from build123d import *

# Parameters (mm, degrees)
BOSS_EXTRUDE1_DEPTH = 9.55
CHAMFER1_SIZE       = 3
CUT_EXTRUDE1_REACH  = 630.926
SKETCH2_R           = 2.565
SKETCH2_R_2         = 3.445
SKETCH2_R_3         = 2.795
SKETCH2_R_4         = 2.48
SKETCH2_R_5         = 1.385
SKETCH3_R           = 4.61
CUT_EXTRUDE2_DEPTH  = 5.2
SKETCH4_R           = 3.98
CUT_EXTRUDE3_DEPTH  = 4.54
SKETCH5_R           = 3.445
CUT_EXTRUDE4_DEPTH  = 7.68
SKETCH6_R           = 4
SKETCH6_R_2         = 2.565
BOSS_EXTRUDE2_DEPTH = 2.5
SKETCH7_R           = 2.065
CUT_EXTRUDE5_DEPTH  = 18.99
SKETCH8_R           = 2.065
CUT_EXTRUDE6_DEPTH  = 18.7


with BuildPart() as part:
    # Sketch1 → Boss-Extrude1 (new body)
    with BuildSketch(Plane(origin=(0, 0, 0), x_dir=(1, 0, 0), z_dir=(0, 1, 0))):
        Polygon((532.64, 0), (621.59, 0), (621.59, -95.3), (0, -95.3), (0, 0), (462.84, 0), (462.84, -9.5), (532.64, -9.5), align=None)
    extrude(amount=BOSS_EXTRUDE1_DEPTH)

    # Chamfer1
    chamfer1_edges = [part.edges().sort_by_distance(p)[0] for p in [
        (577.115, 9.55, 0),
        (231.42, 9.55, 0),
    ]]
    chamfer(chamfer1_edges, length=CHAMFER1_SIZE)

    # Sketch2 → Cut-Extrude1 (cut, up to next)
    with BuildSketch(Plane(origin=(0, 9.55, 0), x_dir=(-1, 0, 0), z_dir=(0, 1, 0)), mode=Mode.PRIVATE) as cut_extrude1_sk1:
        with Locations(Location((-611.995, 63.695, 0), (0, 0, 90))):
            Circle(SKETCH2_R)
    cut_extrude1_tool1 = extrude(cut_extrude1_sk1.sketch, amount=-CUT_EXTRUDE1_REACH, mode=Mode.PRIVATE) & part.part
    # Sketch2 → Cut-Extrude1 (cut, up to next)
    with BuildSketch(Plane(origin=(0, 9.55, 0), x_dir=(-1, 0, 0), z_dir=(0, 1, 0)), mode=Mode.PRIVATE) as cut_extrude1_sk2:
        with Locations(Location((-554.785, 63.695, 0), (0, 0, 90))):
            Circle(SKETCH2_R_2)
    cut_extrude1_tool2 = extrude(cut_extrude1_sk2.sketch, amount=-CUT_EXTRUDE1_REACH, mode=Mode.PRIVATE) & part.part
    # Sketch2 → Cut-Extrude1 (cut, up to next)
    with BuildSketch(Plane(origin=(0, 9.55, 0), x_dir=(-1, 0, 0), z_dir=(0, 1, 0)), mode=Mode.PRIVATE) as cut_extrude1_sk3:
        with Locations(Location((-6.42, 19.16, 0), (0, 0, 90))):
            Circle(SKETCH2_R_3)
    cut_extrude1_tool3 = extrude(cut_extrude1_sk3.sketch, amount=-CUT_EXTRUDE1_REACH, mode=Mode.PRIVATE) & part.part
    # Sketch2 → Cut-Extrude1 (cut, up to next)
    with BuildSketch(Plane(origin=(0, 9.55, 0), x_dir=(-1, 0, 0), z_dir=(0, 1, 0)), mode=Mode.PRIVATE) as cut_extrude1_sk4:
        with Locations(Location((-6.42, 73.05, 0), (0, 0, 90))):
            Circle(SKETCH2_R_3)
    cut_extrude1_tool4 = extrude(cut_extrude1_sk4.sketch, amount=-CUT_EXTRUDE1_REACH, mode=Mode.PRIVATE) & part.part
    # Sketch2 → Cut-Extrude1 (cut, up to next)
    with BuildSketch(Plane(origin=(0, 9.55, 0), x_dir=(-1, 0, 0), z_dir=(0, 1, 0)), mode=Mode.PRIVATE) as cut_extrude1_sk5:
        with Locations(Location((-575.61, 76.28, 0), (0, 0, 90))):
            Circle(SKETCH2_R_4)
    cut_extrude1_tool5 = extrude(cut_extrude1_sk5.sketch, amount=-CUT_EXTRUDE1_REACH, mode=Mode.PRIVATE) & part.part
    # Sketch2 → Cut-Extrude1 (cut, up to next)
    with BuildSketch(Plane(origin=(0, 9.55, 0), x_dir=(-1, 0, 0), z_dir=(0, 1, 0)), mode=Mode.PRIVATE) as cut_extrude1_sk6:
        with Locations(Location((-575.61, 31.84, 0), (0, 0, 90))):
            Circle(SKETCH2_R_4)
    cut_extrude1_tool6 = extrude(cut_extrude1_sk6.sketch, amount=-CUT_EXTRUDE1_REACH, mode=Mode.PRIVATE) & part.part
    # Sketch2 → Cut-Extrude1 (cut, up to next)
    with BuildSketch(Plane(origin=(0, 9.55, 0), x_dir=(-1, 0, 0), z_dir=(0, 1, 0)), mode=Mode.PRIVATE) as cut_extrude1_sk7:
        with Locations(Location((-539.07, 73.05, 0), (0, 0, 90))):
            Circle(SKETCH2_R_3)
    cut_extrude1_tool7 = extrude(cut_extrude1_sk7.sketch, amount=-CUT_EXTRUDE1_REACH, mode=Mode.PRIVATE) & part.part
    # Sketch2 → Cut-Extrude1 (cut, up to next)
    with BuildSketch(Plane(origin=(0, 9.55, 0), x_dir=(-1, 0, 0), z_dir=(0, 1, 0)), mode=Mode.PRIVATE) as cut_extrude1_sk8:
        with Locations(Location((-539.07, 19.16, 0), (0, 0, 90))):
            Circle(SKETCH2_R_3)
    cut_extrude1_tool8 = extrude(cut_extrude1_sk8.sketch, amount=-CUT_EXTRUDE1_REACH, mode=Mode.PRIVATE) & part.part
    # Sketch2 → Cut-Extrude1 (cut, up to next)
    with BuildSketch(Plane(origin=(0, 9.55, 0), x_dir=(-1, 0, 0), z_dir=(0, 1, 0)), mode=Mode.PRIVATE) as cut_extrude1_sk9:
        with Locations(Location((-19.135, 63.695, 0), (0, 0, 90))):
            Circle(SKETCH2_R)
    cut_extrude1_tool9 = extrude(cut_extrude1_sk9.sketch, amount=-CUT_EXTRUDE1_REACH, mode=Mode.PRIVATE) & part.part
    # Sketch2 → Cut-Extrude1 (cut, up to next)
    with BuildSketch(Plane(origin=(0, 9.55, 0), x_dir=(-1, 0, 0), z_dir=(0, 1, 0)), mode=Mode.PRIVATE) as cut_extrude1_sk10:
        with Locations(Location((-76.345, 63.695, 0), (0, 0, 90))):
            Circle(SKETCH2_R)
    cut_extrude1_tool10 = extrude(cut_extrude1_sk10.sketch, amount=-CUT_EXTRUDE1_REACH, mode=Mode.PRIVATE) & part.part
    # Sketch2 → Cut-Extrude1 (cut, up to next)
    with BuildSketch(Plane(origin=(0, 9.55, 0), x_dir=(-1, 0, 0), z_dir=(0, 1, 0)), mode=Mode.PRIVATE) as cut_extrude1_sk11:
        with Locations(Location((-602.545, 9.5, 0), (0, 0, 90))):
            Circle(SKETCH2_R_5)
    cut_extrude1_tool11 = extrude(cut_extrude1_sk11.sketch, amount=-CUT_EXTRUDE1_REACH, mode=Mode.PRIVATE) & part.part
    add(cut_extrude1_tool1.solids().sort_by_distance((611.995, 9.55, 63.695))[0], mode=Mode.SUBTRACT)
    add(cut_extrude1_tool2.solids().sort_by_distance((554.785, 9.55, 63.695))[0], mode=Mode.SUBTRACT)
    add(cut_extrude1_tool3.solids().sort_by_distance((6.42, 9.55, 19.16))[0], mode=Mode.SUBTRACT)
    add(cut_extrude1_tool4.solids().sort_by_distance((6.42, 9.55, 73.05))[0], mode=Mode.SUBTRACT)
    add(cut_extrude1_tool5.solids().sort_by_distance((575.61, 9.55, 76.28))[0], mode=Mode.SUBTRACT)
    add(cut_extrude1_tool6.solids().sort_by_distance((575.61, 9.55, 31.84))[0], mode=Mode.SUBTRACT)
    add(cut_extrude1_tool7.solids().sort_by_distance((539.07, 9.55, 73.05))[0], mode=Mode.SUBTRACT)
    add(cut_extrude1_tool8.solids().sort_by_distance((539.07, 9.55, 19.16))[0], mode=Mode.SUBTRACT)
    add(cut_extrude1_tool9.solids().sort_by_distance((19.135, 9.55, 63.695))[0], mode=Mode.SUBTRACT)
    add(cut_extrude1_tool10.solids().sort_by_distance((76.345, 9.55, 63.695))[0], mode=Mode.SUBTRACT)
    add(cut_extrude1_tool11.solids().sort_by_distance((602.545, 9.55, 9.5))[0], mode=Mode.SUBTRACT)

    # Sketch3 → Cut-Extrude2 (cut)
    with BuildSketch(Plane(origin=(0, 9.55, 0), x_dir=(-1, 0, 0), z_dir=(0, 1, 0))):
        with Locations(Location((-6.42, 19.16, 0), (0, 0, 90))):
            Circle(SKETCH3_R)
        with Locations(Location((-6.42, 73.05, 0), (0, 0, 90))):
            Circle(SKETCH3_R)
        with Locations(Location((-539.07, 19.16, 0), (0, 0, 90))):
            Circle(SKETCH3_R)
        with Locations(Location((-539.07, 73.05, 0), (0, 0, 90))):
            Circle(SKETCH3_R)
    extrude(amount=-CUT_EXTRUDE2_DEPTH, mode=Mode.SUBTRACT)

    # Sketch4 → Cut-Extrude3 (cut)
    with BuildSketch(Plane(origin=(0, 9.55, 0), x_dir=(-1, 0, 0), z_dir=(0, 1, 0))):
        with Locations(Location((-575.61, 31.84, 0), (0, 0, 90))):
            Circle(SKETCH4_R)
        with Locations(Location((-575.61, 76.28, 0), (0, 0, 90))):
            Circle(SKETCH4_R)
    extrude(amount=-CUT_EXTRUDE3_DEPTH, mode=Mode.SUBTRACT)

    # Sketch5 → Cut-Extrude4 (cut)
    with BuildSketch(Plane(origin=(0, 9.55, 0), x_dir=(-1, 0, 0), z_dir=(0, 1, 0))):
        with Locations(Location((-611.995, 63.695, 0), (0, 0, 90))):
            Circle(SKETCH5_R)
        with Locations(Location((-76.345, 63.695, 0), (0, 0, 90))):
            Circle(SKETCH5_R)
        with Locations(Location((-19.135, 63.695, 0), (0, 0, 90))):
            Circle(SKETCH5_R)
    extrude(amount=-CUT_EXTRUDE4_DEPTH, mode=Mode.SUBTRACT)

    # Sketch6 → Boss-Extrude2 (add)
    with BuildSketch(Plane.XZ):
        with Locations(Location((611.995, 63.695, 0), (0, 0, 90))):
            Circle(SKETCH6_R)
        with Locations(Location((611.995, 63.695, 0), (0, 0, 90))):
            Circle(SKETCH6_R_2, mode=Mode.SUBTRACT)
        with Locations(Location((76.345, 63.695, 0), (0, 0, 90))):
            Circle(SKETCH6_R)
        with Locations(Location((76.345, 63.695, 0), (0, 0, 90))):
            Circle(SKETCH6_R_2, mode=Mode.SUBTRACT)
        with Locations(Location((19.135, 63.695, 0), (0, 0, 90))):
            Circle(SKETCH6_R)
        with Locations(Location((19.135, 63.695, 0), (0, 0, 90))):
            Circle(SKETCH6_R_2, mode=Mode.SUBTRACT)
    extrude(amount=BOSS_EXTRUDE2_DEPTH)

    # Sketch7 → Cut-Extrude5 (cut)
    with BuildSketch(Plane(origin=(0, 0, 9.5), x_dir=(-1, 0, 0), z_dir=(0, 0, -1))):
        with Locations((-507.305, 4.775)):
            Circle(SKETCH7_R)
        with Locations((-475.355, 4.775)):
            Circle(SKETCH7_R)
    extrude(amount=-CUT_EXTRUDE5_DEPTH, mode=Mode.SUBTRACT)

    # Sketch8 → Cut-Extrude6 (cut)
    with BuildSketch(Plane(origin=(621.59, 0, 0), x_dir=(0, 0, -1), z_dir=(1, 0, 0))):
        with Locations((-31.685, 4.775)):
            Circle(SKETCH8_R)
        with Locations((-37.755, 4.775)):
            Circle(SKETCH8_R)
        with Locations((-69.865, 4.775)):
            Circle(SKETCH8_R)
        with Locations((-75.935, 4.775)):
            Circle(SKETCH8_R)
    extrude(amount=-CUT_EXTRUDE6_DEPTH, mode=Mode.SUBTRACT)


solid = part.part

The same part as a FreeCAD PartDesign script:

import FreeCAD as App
import Part
import Sketcher
from FreeCAD import Vector
Q = App.Units.Quantity


def edges_at(feature, points):
    """Names of the edges that pass closest to the given points."""
    edges = feature.Shape.Edges
    near = lambda p: min(range(len(edges)), key=lambda i: edges[i].distToShape(Part.Vertex(*p))[0])
    return sorted({f"Edge{near(p) + 1}" for p in points})

doc = App.newDocument("Part")
body = doc.addObject("PartDesign::Body", "Body")

# Sketch on XZ plane
sketch1 = body.newObject("Sketcher::SketchObject", "Sketch")
sketch1.AttachmentSupport = (doc.getObject("XZ_Plane"), [""])
sketch1.MapMode = "FlatFace"
sketch1.addGeometry(Part.LineSegment(Vector(622, 0, 0), Vector(533, 0, 0)), False)
sketch1.addGeometry(Part.LineSegment(Vector(533, 0, 0), Vector(533, 10, 0)), False)
sketch1.addGeometry(Part.LineSegment(Vector(533, 10, 0), Vector(463, 10, 0)), False)
sketch1.addGeometry(Part.LineSegment(Vector(463, 10, 0), Vector(463, 0, 0)), False)
sketch1.addGeometry(Part.LineSegment(Vector(463, 0, 0), Vector(0, 0, 0)), False)
sketch1.addGeometry(Part.LineSegment(Vector(0, 0, 0), Vector(0, 95, 0)), False)
sketch1.addGeometry(Part.LineSegment(Vector(0, 95, 0), Vector(622, 95, 0)), False)
sketch1.addGeometry(Part.LineSegment(Vector(622, 95, 0), Vector(622, 0, 0)), False)
sketch1.addConstraint(Sketcher.Constraint("Coincident", 0, 2, 1, 1))
sketch1.addConstraint(Sketcher.Constraint("Coincident", 1, 2, 2, 1))
sketch1.addConstraint(Sketcher.Constraint("Coincident", 2, 2, 3, 1))
sketch1.addConstraint(Sketcher.Constraint("Coincident", 3, 2, 4, 1))
sketch1.addConstraint(Sketcher.Constraint("Coincident", 4, 2, 5, 1))
sketch1.addConstraint(Sketcher.Constraint("Coincident", 5, 2, 6, 1))
sketch1.addConstraint(Sketcher.Constraint("Coincident", 6, 2, 7, 1))
sketch1.addConstraint(Sketcher.Constraint("Coincident", 7, 2, 0, 1))
sketch1.addConstraint(Sketcher.Constraint("Horizontal", 0))
sketch1.addConstraint(Sketcher.Constraint("Vertical", 1))
sketch1.addConstraint(Sketcher.Constraint("Horizontal", 2))
sketch1.addConstraint(Sketcher.Constraint("Vertical", 3))
sketch1.addConstraint(Sketcher.Constraint("Horizontal", 4))
sketch1.addConstraint(Sketcher.Constraint("Vertical", 5))
sketch1.addConstraint(Sketcher.Constraint("Horizontal", 6))
sketch1.addConstraint(Sketcher.Constraint("Vertical", 7))
sketch1.addConstraint(Sketcher.Constraint("Coincident", 4, 2, -1, 1))
sketch1.addConstraint(Sketcher.Constraint("PointOnObject", 0, 2, -1))
sketch1.addConstraint(Sketcher.Constraint("DistanceX", 2, 2, 2, 1, Q("69.8 mm")))
sketch1.addConstraint(Sketcher.Constraint("DistanceY", 1, 1, 1, 2, Q("9.5 mm")))
sketch1.addConstraint(Sketcher.Constraint("DistanceY", 5, 1, 5, 2, Q("95.3 mm")))
sketch1.addConstraint(Sketcher.Constraint("DistanceX", 0, 2, 0, 1, Q("88.95 mm")))
sketch1.addConstraint(Sketcher.Constraint("DistanceX", 4, 2, 4, 1, Q("462.84 mm")))
pad1 = body.newObject("PartDesign::Pad", "Pad")
pad1.Profile = sketch1
pad1.Length = 9.55
pad1.Reversed = True
doc.recompute()

chamfer = body.newObject("PartDesign::Chamfer", "Chamfer")
chamfer.Base = (pad1, edges_at(pad1, [(577.115, 9.55, 0), (231.42, 9.55, 0)]))
chamfer.Size = 3

# Sketch on XZ plane
sketch2 = body.newObject("Sketcher::SketchObject", "Sketch001")
sketch2.AttachmentSupport = (doc.getObject("XZ_Plane"), [""])
sketch2.MapMode = "FlatFace"
sketch2.AttachmentOffset = App.Placement(Vector(0, 0, -9.55), App.Rotation())
sketch2.addGeometry(Part.Circle(Vector(612, 63.7, 0), Vector(0, 0, 1), 2.6), False)
sketch2.addConstraint(Sketcher.Constraint("Diameter", 0, Q("5.13 mm")))
sketch2.addConstraint(Sketcher.Constraint("DistanceX", -1, 1, 0, 3, Q("611.995 mm")))
sketch2.addConstraint(Sketcher.Constraint("DistanceY", -1, 1, 0, 3, Q("63.695 mm")))
pocket1 = body.newObject("PartDesign::Pocket", "Pocket")
pocket1.Profile = sketch2
pocket1.Type = "UpToFirst"
pocket1.Reversed = True

# Sketch on XZ plane
sketch3 = body.newObject("Sketcher::SketchObject", "Sketch002")
sketch3.AttachmentSupport = (doc.getObject("XZ_Plane"), [""])
sketch3.MapMode = "FlatFace"
sketch3.AttachmentOffset = App.Placement(Vector(0, 0, -9.55), App.Rotation())
sketch3.addGeometry(Part.Circle(Vector(554.8, 63.7, 0), Vector(0, 0, 1), 3.4), False)
sketch3.addConstraint(Sketcher.Constraint("Diameter", 0, Q("6.89 mm")))
sketch3.addConstraint(Sketcher.Constraint("DistanceX", -1, 1, 0, 3, Q("554.785 mm")))
sketch3.addConstraint(Sketcher.Constraint("DistanceY", -1, 1, 0, 3, Q("63.695 mm")))
pocket2 = body.newObject("PartDesign::Pocket", "Pocket001")
pocket2.Profile = sketch3
pocket2.Type = "UpToFirst"
pocket2.Reversed = True

# Sketch on XZ plane
sketch4 = body.newObject("Sketcher::SketchObject", "Sketch003")
sketch4.AttachmentSupport = (doc.getObject("XZ_Plane"), [""])
sketch4.MapMode = "FlatFace"
sketch4.AttachmentOffset = App.Placement(Vector(0, 0, -9.55), App.Rotation())
sketch4.addGeometry(Part.Circle(Vector(6.4, 19.2, 0), Vector(0, 0, 1), 2.8), False)
sketch4.addConstraint(Sketcher.Constraint("Diameter", 0, Q("5.59 mm")))
sketch4.addConstraint(Sketcher.Constraint("DistanceX", -1, 1, 0, 3, Q("6.42 mm")))
sketch4.addConstraint(Sketcher.Constraint("DistanceY", -1, 1, 0, 3, Q("19.16 mm")))
pocket3 = body.newObject("PartDesign::Pocket", "Pocket002")
pocket3.Profile = sketch4
pocket3.Type = "UpToFirst"
pocket3.Reversed = True

# Sketch on XZ plane
sketch5 = body.newObject("Sketcher::SketchObject", "Sketch004")
sketch5.AttachmentSupport = (doc.getObject("XZ_Plane"), [""])
sketch5.MapMode = "FlatFace"
sketch5.AttachmentOffset = App.Placement(Vector(0, 0, -9.55), App.Rotation())
sketch5.addGeometry(Part.Circle(Vector(6.4, 73, 0), Vector(0, 0, 1), 2.8), False)
sketch5.addConstraint(Sketcher.Constraint("Diameter", 0, Q("5.59 mm")))
sketch5.addConstraint(Sketcher.Constraint("DistanceX", -1, 1, 0, 3, Q("6.42 mm")))
sketch5.addConstraint(Sketcher.Constraint("DistanceY", -1, 1, 0, 3, Q("73.05 mm")))
pocket4 = body.newObject("PartDesign::Pocket", "Pocket003")
pocket4.Profile = sketch5
pocket4.Type = "UpToFirst"
pocket4.Reversed = True

# Sketch on XZ plane
sketch6 = body.newObject("Sketcher::SketchObject", "Sketch005")
sketch6.AttachmentSupport = (doc.getObject("XZ_Plane"), [""])
sketch6.MapMode = "FlatFace"
sketch6.AttachmentOffset = App.Placement(Vector(0, 0, -9.55), App.Rotation())
sketch6.addGeometry(Part.Circle(Vector(575.6, 76.3, 0), Vector(0, 0, 1), 2.5), False)
sketch6.addConstraint(Sketcher.Constraint("Diameter", 0, Q("4.96 mm")))
sketch6.addConstraint(Sketcher.Constraint("DistanceX", -1, 1, 0, 3, Q("575.61 mm")))
sketch6.addConstraint(Sketcher.Constraint("DistanceY", -1, 1, 0, 3, Q("76.28 mm")))
pocket5 = body.newObject("PartDesign::Pocket", "Pocket004")
pocket5.Profile = sketch6
pocket5.Type = "UpToFirst"
pocket5.Reversed = True

# Sketch on XZ plane
sketch7 = body.newObject("Sketcher::SketchObject", "Sketch006")
sketch7.AttachmentSupport = (doc.getObject("XZ_Plane"), [""])
sketch7.MapMode = "FlatFace"
sketch7.AttachmentOffset = App.Placement(Vector(0, 0, -9.55), App.Rotation())
sketch7.addGeometry(Part.Circle(Vector(575.6, 31.8, 0), Vector(0, 0, 1), 2.5), False)
sketch7.addConstraint(Sketcher.Constraint("Diameter", 0, Q("4.96 mm")))
sketch7.addConstraint(Sketcher.Constraint("DistanceX", -1, 1, 0, 3, Q("575.61 mm")))
sketch7.addConstraint(Sketcher.Constraint("DistanceY", -1, 1, 0, 3, Q("31.84 mm")))
pocket6 = body.newObject("PartDesign::Pocket", "Pocket005")
pocket6.Profile = sketch7
pocket6.Type = "UpToFirst"
pocket6.Reversed = True

# Sketch on XZ plane
sketch8 = body.newObject("Sketcher::SketchObject", "Sketch007")
sketch8.AttachmentSupport = (doc.getObject("XZ_Plane"), [""])
sketch8.MapMode = "FlatFace"
sketch8.AttachmentOffset = App.Placement(Vector(0, 0, -9.55), App.Rotation())
sketch8.addGeometry(Part.Circle(Vector(539.1, 73, 0), Vector(0, 0, 1), 2.8), False)
sketch8.addConstraint(Sketcher.Constraint("Diameter", 0, Q("5.59 mm")))
sketch8.addConstraint(Sketcher.Constraint("DistanceX", -1, 1, 0, 3, Q("539.07 mm")))
sketch8.addConstraint(Sketcher.Constraint("DistanceY", -1, 1, 0, 3, Q("73.05 mm")))
pocket7 = body.newObject("PartDesign::Pocket", "Pocket006")
pocket7.Profile = sketch8
pocket7.Type = "UpToFirst"
pocket7.Reversed = True

# Sketch on XZ plane
sketch9 = body.newObject("Sketcher::SketchObject", "Sketch008")
sketch9.AttachmentSupport = (doc.getObject("XZ_Plane"), [""])
sketch9.MapMode = "FlatFace"
sketch9.AttachmentOffset = App.Placement(Vector(0, 0, -9.55), App.Rotation())
sketch9.addGeometry(Part.Circle(Vector(539.1, 19.2, 0), Vector(0, 0, 1), 2.8), False)
sketch9.addConstraint(Sketcher.Constraint("Diameter", 0, Q("5.59 mm")))
sketch9.addConstraint(Sketcher.Constraint("DistanceX", -1, 1, 0, 3, Q("539.07 mm")))
sketch9.addConstraint(Sketcher.Constraint("DistanceY", -1, 1, 0, 3, Q("19.16 mm")))
pocket8 = body.newObject("PartDesign::Pocket", "Pocket007")
pocket8.Profile = sketch9
pocket8.Type = "UpToFirst"
pocket8.Reversed = True

# Sketch on XZ plane
sketch10 = body.newObject("Sketcher::SketchObject", "Sketch009")
sketch10.AttachmentSupport = (doc.getObject("XZ_Plane"), [""])
sketch10.MapMode = "FlatFace"
sketch10.AttachmentOffset = App.Placement(Vector(0, 0, -9.55), App.Rotation())
sketch10.addGeometry(Part.Circle(Vector(19.1, 63.7, 0), Vector(0, 0, 1), 2.6), False)
sketch10.addConstraint(Sketcher.Constraint("Diameter", 0, Q("5.13 mm")))
sketch10.addConstraint(Sketcher.Constraint("DistanceX", -1, 1, 0, 3, Q("19.135 mm")))
sketch10.addConstraint(Sketcher.Constraint("DistanceY", -1, 1, 0, 3, Q("63.695 mm")))
pocket9 = body.newObject("PartDesign::Pocket", "Pocket008")
pocket9.Profile = sketch10
pocket9.Type = "UpToFirst"
pocket9.Reversed = True

# Sketch on XZ plane
sketch11 = body.newObject("Sketcher::SketchObject", "Sketch010")
sketch11.AttachmentSupport = (doc.getObject("XZ_Plane"), [""])
sketch11.MapMode = "FlatFace"
sketch11.AttachmentOffset = App.Placement(Vector(0, 0, -9.55), App.Rotation())
sketch11.addGeometry(Part.Circle(Vector(76.3, 63.7, 0), Vector(0, 0, 1), 2.6), False)
sketch11.addConstraint(Sketcher.Constraint("Diameter", 0, Q("5.13 mm")))
sketch11.addConstraint(Sketcher.Constraint("DistanceX", -1, 1, 0, 3, Q("76.345 mm")))
sketch11.addConstraint(Sketcher.Constraint("DistanceY", -1, 1, 0, 3, Q("63.695 mm")))
pocket10 = body.newObject("PartDesign::Pocket", "Pocket009")
pocket10.Profile = sketch11
pocket10.Type = "UpToFirst"
pocket10.Reversed = True

# Sketch on XZ plane
sketch12 = body.newObject("Sketcher::SketchObject", "Sketch011")
sketch12.AttachmentSupport = (doc.getObject("XZ_Plane"), [""])
sketch12.MapMode = "FlatFace"
sketch12.AttachmentOffset = App.Placement(Vector(0, 0, -9.55), App.Rotation())
sketch12.addGeometry(Part.Circle(Vector(602.5, 9.5, 0), Vector(0, 0, 1), 1.4), False)
sketch12.addConstraint(Sketcher.Constraint("Diameter", 0, Q("2.77 mm")))
sketch12.addConstraint(Sketcher.Constraint("DistanceY", -1, 1, 0, 3, Q("9.5 mm")))
sketch12.addConstraint(Sketcher.Constraint("DistanceX", -1, 1, 0, 3, Q("602.545 mm")))
pocket11 = body.newObject("PartDesign::Pocket", "Pocket010")
pocket11.Profile = sketch12
pocket11.Type = "UpToFirst"
pocket11.Reversed = True

# Sketch on XZ plane
sketch13 = body.newObject("Sketcher::SketchObject", "Sketch012")
sketch13.AttachmentSupport = (doc.getObject("XZ_Plane"), [""])
sketch13.MapMode = "FlatFace"
sketch13.AttachmentOffset = App.Placement(Vector(0, 0, -9.55), App.Rotation())
sketch13.addGeometry(Part.Circle(Vector(6.4, 19.2, 0), Vector(0, 0, 1), 4.6), False)
sketch13.addGeometry(Part.Circle(Vector(6.4, 73, 0), Vector(0, 0, 1), 4.6), False)
sketch13.addGeometry(Part.Circle(Vector(539.1, 19.2, 0), Vector(0, 0, 1), 4.6), False)
sketch13.addGeometry(Part.Circle(Vector(539.1, 73, 0), Vector(0, 0, 1), 4.6), False)
sketch13.addConstraint(Sketcher.Constraint("Equal", 0, 1))
sketch13.addConstraint(Sketcher.Constraint("Equal", 1, 2))
sketch13.addConstraint(Sketcher.Constraint("Equal", 2, 3))
sketch13.addConstraint(Sketcher.Constraint("Horizontal", 0, 3, 2, 3))
sketch13.addConstraint(Sketcher.Constraint("Horizontal", 1, 3, 3, 3))
sketch13.addConstraint(Sketcher.Constraint("Vertical", 0, 3, 1, 3))
sketch13.addConstraint(Sketcher.Constraint("Vertical", 2, 3, 3, 3))
sketch13.addConstraint(Sketcher.Constraint("Diameter", 0, Q("9.22 mm")))
sketch13.addConstraint(Sketcher.Constraint("DistanceX", -1, 1, 0, 3, Q("6.42 mm")))
sketch13.addConstraint(Sketcher.Constraint("DistanceY", -1, 1, 0, 3, Q("19.16 mm")))
sketch13.addConstraint(Sketcher.Constraint("DistanceY", -1, 1, 1, 3, Q("73.05 mm")))
sketch13.addConstraint(Sketcher.Constraint("DistanceX", -1, 1, 2, 3, Q("539.07 mm")))
pocket12 = body.newObject("PartDesign::Pocket", "Pocket011")
pocket12.Profile = sketch13
pocket12.Length = 5.2
pocket12.Reversed = True

# Sketch on XZ plane
sketch14 = body.newObject("Sketcher::SketchObject", "Sketch013")
sketch14.AttachmentSupport = (doc.getObject("XZ_Plane"), [""])
sketch14.MapMode = "FlatFace"
sketch14.AttachmentOffset = App.Placement(Vector(0, 0, -9.55), App.Rotation())
sketch14.addGeometry(Part.Circle(Vector(575.6, 31.8, 0), Vector(0, 0, 1), 4), False)
sketch14.addGeometry(Part.Circle(Vector(575.6, 76.3, 0), Vector(0, 0, 1), 4), False)
sketch14.addConstraint(Sketcher.Constraint("Equal", 0, 1))
sketch14.addConstraint(Sketcher.Constraint("Vertical", 0, 3, 1, 3))
sketch14.addConstraint(Sketcher.Constraint("Diameter", 0, Q("7.96 mm")))
sketch14.addConstraint(Sketcher.Constraint("DistanceX", -1, 1, 0, 3, Q("575.61 mm")))
sketch14.addConstraint(Sketcher.Constraint("DistanceY", -1, 1, 0, 3, Q("31.84 mm")))
sketch14.addConstraint(Sketcher.Constraint("DistanceY", -1, 1, 1, 3, Q("76.28 mm")))
pocket13 = body.newObject("PartDesign::Pocket", "Pocket012")
pocket13.Profile = sketch14
pocket13.Length = 4.54
pocket13.Reversed = True

# Sketch on XZ plane
sketch15 = body.newObject("Sketcher::SketchObject", "Sketch014")
sketch15.AttachmentSupport = (doc.getObject("XZ_Plane"), [""])
sketch15.MapMode = "FlatFace"
sketch15.AttachmentOffset = App.Placement(Vector(0, 0, -9.55), App.Rotation())
sketch15.addGeometry(Part.Circle(Vector(612, 63.7, 0), Vector(0, 0, 1), 3.4), False)
sketch15.addGeometry(Part.Circle(Vector(76.3, 63.7, 0), Vector(0, 0, 1), 3.4), False)
sketch15.addGeometry(Part.Circle(Vector(19.1, 63.7, 0), Vector(0, 0, 1), 3.4), False)
sketch15.addConstraint(Sketcher.Constraint("Equal", 0, 1))
sketch15.addConstraint(Sketcher.Constraint("Equal", 1, 2))
sketch15.addConstraint(Sketcher.Constraint("Horizontal", 0, 3, 1, 3))
sketch15.addConstraint(Sketcher.Constraint("Horizontal", 1, 3, 2, 3))
sketch15.addConstraint(Sketcher.Constraint("Diameter", 0, Q("6.89 mm")))
sketch15.addConstraint(Sketcher.Constraint("DistanceX", 1, 3, 0, 3, Q("535.65 mm")))
sketch15.addConstraint(Sketcher.Constraint("DistanceX", 2, 3, 1, 3, Q("57.21 mm")))
sketch15.addConstraint(Sketcher.Constraint("DistanceX", -1, 1, 0, 3, Q("611.995 mm")))
sketch15.addConstraint(Sketcher.Constraint("DistanceY", -1, 1, 0, 3, Q("63.695 mm")))
pocket14 = body.newObject("PartDesign::Pocket", "Pocket013")
pocket14.Profile = sketch15
pocket14.Length = 7.68
pocket14.Reversed = True

# Sketch on XZ plane
sketch16 = body.newObject("Sketcher::SketchObject", "Sketch015")
sketch16.AttachmentSupport = (doc.getObject("XZ_Plane"), [""])
sketch16.MapMode = "FlatFace"
sketch16.addGeometry(Part.Circle(Vector(612, 63.7, 0), Vector(0, 0, 1), 4), False)
sketch16.addGeometry(Part.Circle(Vector(612, 63.7, 0), Vector(0, 0, 1), 2.6), False)
sketch16.addGeometry(Part.Circle(Vector(76.3, 63.7, 0), Vector(0, 0, 1), 4), False)
sketch16.addGeometry(Part.Circle(Vector(76.3, 63.7, 0), Vector(0, 0, 1), 2.6), False)
sketch16.addGeometry(Part.Circle(Vector(19.1, 63.7, 0), Vector(0, 0, 1), 4), False)
sketch16.addGeometry(Part.Circle(Vector(19.1, 63.7, 0), Vector(0, 0, 1), 2.6), False)
sketch16.addConstraint(Sketcher.Constraint("Coincident", 1, 3, 0, 3))
sketch16.addConstraint(Sketcher.Constraint("Coincident", 3, 3, 2, 3))
sketch16.addConstraint(Sketcher.Constraint("Coincident", 5, 3, 4, 3))
sketch16.addConstraint(Sketcher.Constraint("Equal", 0, 2))
sketch16.addConstraint(Sketcher.Constraint("Equal", 1, 3))
sketch16.addConstraint(Sketcher.Constraint("Equal", 2, 4))
sketch16.addConstraint(Sketcher.Constraint("Equal", 3, 5))
sketch16.addConstraint(Sketcher.Constraint("Horizontal", 1, 3, 2, 3))
sketch16.addConstraint(Sketcher.Constraint("Horizontal", 3, 3, 4, 3))
sketch16.addConstraint(Sketcher.Constraint("Diameter", 0, Q("8 mm")))
sketch16.addConstraint(Sketcher.Constraint("Diameter", 1, Q("5.13 mm")))
sketch16.addConstraint(Sketcher.Constraint("DistanceX", 2, 3, 0, 3, Q("535.65 mm")))
sketch16.addConstraint(Sketcher.Constraint("DistanceX", 4, 3, 2, 3, Q("57.21 mm")))
sketch16.addConstraint(Sketcher.Constraint("DistanceX", -1, 1, 0, 3, Q("611.995 mm")))
sketch16.addConstraint(Sketcher.Constraint("DistanceY", -1, 1, 0, 3, Q("63.695 mm")))
pad2 = body.newObject("PartDesign::Pad", "Pad001")
pad2.Profile = sketch16
pad2.Length = 2.5

# Sketch on XY plane
sketch17 = body.newObject("Sketcher::SketchObject", "Sketch016")
sketch17.AttachmentSupport = (doc.getObject("XY_Plane"), [""])
sketch17.MapMode = "FlatFace"
sketch17.AttachmentOffset = App.Placement(Vector(0, 0, 9.5), App.Rotation())
sketch17.addGeometry(Part.Circle(Vector(507.3, 4.8, 0), Vector(0, 0, 1), 2.1), False)
sketch17.addGeometry(Part.Circle(Vector(475.4, 4.8, 0), Vector(0, 0, 1), 2.1), False)
sketch17.addConstraint(Sketcher.Constraint("Equal", 0, 1))
sketch17.addConstraint(Sketcher.Constraint("Horizontal", 0, 3, 1, 3))
sketch17.addConstraint(Sketcher.Constraint("Diameter", 0, Q("4.13 mm")))
sketch17.addConstraint(Sketcher.Constraint("DistanceX", 1, 3, 0, 3, Q("31.95 mm")))
sketch17.addConstraint(Sketcher.Constraint("DistanceX", -1, 1, 0, 3, Q("507.305 mm")))
sketch17.addConstraint(Sketcher.Constraint("DistanceY", -1, 1, 0, 3, Q("4.775 mm")))
pocket15 = body.newObject("PartDesign::Pocket", "Pocket014")
pocket15.Profile = sketch17
pocket15.Length = 18.99
pocket15.Reversed = True

# Sketch on YZ plane
sketch18 = body.newObject("Sketcher::SketchObject", "Sketch017")
sketch18.AttachmentSupport = (doc.getObject("YZ_Plane"), [""])
sketch18.MapMode = "FlatFace"
sketch18.AttachmentOffset = App.Placement(Vector(0, 0, 621.59), App.Rotation())
sketch18.addGeometry(Part.Circle(Vector(4.8, 31.7, 0), Vector(0, 0, 1), 2.1), False)
sketch18.addGeometry(Part.Circle(Vector(4.8, 37.8, 0), Vector(0, 0, 1), 2.1), False)
sketch18.addGeometry(Part.Circle(Vector(4.8, 69.9, 0), Vector(0, 0, 1), 2.1), False)
sketch18.addGeometry(Part.Circle(Vector(4.8, 75.9, 0), Vector(0, 0, 1), 2.1), False)
sketch18.addConstraint(Sketcher.Constraint("Equal", 0, 1))
sketch18.addConstraint(Sketcher.Constraint("Equal", 1, 2))
sketch18.addConstraint(Sketcher.Constraint("Equal", 2, 3))
sketch18.addConstraint(Sketcher.Constraint("Vertical", 0, 3, 1, 3))
sketch18.addConstraint(Sketcher.Constraint("Vertical", 1, 3, 2, 3))
sketch18.addConstraint(Sketcher.Constraint("Vertical", 2, 3, 3, 3))
sketch18.addConstraint(Sketcher.Constraint("Diameter", 0, Q("4.13 mm")))
sketch18.addConstraint(Sketcher.Constraint("DistanceY", 0, 3, 1, 3, Q("6.07 mm")))
sketch18.addConstraint(Sketcher.Constraint("DistanceY", 1, 3, 2, 3, Q("32.11 mm")))
sketch18.addConstraint(Sketcher.Constraint("DistanceY", 2, 3, 3, 3, Q("6.07 mm")))
sketch18.addConstraint(Sketcher.Constraint("DistanceX", -1, 1, 0, 3, Q("4.775 mm")))
sketch18.addConstraint(Sketcher.Constraint("DistanceY", -1, 1, 0, 3, Q("31.685 mm")))
pocket16 = body.newObject("PartDesign::Pocket", "Pocket015")
pocket16.Profile = sketch18
pocket16.Length = 18.7

doc.recompute()
